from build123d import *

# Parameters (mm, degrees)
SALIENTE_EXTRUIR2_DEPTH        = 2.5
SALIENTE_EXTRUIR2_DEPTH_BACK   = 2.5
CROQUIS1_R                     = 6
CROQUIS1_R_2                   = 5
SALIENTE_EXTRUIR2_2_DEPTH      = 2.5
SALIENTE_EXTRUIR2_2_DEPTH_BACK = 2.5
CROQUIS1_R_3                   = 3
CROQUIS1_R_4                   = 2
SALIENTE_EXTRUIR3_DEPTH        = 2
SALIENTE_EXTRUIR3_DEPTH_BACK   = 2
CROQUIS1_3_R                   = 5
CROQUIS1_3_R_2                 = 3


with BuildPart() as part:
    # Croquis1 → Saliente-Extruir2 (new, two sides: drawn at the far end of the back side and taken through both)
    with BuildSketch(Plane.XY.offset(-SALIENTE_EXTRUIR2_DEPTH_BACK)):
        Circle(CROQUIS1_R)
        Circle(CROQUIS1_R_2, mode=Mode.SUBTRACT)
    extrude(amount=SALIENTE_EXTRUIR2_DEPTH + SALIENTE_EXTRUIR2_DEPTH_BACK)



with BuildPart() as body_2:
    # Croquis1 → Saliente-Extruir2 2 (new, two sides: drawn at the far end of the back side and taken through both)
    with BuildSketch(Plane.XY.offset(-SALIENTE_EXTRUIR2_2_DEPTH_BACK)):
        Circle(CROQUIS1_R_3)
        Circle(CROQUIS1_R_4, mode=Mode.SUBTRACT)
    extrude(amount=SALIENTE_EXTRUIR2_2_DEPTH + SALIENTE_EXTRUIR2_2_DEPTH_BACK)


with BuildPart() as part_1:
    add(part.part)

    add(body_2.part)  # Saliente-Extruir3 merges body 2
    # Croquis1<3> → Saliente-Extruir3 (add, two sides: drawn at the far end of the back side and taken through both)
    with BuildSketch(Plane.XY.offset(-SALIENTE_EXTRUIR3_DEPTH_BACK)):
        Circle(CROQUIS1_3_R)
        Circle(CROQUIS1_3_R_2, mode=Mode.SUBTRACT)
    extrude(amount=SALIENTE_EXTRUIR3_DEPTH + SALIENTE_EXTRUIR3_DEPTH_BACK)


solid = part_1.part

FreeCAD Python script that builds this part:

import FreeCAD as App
import Part
import Sketcher

V = App.Vector

doc = App.newDocument("Part")
body = doc.addObject("PartDesign::Body", "Body")

# Sketch on XY plane
sketch1 = body.newObject("Sketcher::SketchObject", "Sketch")
sketch1.AttachmentSupport = (doc.getObject("XY_Plane"), [""])
sketch1.MapMode = "FlatFace"
sketch1.addGeometry(Part.Circle(V(0, 0, 0), V(0, 0, 1), 6), False)
sketch1.addGeometry(Part.Circle(V(0, 0, 0), V(0, 0, 1), 5), False)
sketch1.addConstraint(Sketcher.Constraint("Coincident", 0, 3, -1, 1))
sketch1.addConstraint(Sketcher.Constraint("Coincident", 1, 3, -1, 1))
sketch1.addConstraint(Sketcher.Constraint("Diameter", 0, 12.0))
sketch1.addConstraint(Sketcher.Constraint("Diameter", 1, 10.0))
pad1 = body.newObject("PartDesign::Pad", "Pad")
pad1.Profile = sketch1
pad1.Type = "TwoLengths"
pad1.Length = 2.5
pad1.Length2 = 2.5
body2 = doc.addObject("PartDesign::Body", "Body001")

# Sketch on XY plane
sketch2 = body2.newObject("Sketcher::SketchObject", "Sketch001")
sketch2.AttachmentSupport = (doc.getObject("XY_Plane001"), [""])
sketch2.MapMode = "FlatFace"
sketch2.addGeometry(Part.Circle(V(0, 0, 0), V(0, 0, 1), 3), False)
sketch2.addGeometry(Part.Circle(V(0, 0, 0), V(0, 0, 1), 2), False)
sketch2.addConstraint(Sketcher.Constraint("Coincident", 0, 3, -1, 1))
sketch2.addConstraint(Sketcher.Constraint("Coincident", 1, 3, -1, 1))
sketch2.addConstraint(Sketcher.Constraint("Diameter", 0, 6.0))
sketch2.addConstraint(Sketcher.Constraint("Diameter", 1, 4.0))
pad2 = body2.newObject("PartDesign::Pad", "Pad001")
pad2.Profile = sketch2
pad2.Type = "TwoLengths"
pad2.Length = 2.5
pad2.Length2 = 2.5
body.AllowCompound = True
doc.recompute()

boolean = body.newObject("PartDesign::Boolean", "Boolean")
boolean.Type = "Fuse"
boolean.addObjects([body2])

# Sketch on XY plane
sketch3 = body.newObject("Sketcher::SketchObject", "Sketch002")
sketch3.AttachmentSupport = (doc.getObject("XY_Plane"), [""])
sketch3.MapMode = "FlatFace"
sketch3.addGeometry(Part.Circle(V(0, 0, 0), V(0, 0, 1), 5), False)
sketch3.addGeometry(Part.Circle(V(0, 0, 0), V(0, 0, 1), 3), False)
sketch3.addConstraint(Sketcher.Constraint("Coincident", 0, 3, -1, 1))
sketch3.addConstraint(Sketcher.Constraint("Coincident", 1, 3, -1, 1))
sketch3.addConstraint(Sketcher.Constraint("Diameter", 0, 10.0))
sketch3.addConstraint(Sketcher.Constraint("Diameter", 1, 6.0))
pad3 = body.newObject("PartDesign::Pad", "Pad002")
pad3.Profile = sketch3
pad3.Type = "TwoLengths"
pad3.Length = 2
pad3.Length2 = 2

doc.recompute()
